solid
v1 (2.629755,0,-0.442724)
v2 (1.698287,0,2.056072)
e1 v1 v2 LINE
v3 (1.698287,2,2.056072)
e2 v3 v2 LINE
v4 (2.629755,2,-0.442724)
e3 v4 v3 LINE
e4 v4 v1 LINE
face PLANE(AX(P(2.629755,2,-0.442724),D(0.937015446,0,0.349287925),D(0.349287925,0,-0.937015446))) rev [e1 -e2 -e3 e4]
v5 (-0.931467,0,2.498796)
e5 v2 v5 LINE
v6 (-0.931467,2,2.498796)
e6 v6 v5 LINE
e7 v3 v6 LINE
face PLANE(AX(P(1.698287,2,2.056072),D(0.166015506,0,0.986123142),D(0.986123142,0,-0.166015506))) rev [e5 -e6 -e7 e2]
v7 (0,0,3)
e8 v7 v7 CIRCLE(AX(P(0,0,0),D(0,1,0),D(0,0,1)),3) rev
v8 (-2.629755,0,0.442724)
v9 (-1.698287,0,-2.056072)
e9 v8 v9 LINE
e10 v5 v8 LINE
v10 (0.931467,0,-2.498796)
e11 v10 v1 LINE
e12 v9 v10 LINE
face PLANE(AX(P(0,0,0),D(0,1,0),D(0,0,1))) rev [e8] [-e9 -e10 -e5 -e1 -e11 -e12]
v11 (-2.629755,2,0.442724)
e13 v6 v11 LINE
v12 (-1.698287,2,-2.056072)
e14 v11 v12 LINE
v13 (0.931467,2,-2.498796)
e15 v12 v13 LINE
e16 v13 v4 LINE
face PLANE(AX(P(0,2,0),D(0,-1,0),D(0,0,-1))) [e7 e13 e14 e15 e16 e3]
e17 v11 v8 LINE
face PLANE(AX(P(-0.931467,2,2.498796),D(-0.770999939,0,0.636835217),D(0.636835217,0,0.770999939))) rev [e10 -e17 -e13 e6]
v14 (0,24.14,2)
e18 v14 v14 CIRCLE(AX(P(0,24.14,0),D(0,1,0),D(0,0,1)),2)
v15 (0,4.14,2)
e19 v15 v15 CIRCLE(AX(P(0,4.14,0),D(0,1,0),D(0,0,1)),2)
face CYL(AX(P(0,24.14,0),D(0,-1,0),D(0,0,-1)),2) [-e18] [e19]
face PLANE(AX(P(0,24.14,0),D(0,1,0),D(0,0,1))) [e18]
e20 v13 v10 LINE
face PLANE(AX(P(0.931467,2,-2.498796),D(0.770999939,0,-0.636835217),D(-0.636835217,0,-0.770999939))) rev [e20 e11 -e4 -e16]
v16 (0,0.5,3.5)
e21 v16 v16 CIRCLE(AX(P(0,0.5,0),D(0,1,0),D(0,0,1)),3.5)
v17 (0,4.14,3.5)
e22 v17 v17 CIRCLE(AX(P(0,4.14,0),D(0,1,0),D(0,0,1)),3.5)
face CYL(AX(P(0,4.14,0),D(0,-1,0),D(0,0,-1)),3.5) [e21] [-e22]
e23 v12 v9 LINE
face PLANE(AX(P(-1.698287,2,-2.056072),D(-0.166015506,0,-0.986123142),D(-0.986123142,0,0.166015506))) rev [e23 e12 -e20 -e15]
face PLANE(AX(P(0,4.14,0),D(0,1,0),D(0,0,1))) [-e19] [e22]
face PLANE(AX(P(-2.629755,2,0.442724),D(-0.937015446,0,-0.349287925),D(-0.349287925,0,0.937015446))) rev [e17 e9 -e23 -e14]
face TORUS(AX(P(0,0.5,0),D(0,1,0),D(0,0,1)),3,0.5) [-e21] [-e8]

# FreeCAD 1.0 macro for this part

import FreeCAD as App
import Part
import Sketcher


def edges_at(feature, points):
    """Names of the edges that pass closest to the given points."""
    edges = feature.Shape.Edges
    near = lambda p: min(range(len(edges)), key=lambda i: edges[i].distToShape(Part.Vertex(*p))[0])
    return sorted({f"Edge{near(p) + 1}" for p in points})


def add_polygon(sketch, points):
    """Adds a closed chain of lines whose ends are joined by coincident constraints."""
    first, n = sketch.GeometryCount, len(points)
    for a, b in zip(points, points[1:] + points[:1]):
        sketch.addGeometry(Part.LineSegment(App.Vector(*a, 0), App.Vector(*b, 0)), False)
    for i in range(n):
        sketch.addConstraint(Sketcher.Constraint("Coincident", first + i, 2, first + (i + 1) % n, 1))

doc = App.newDocument("Part")
body = doc.addObject("PartDesign::Body", "Body")

# Sketch on XZ plane
sketch1 = body.newObject("Sketcher::SketchObject", "Sketch")
sketch1.AttachmentSupport = (doc.getObject("XZ_Plane"), [""])
sketch1.MapMode = "FlatFace"
sketch1.addGeometry(Part.Circle(App.Vector(0, 0, 0), App.Vector(0, 0, 1), 3.5), False)
sketch1.addConstraint([
    Sketcher.Constraint("Coincident", 0, 3, -1, 1),
    Sketcher.Constraint("Diameter", 0, 7.0),
])
pad1 = body.newObject("PartDesign::Pad", "Pad")
pad1.Profile = sketch1
pad1.Length = 4.14
pad1.Reversed = True

# Sketch on XZ plane
sketch2 = body.newObject("Sketcher::SketchObject", "Sketch001")
sketch2.AttachmentSupport = (doc.getObject("XZ_Plane"), [""])
sketch2.MapMode = "FlatFace"
sketch2.AttachmentOffset = App.Placement(App.Vector(0, 0, -4.14), App.Rotation())
sketch2.addGeometry(Part.Circle(App.Vector(0, 0, 0), App.Vector(0, 0, 1), 2), False)
sketch2.addConstraint([
    Sketcher.Constraint("Coincident", 0, 3, -1, 1),
    Sketcher.Constraint("Diameter", 0, 4.0),
])
pad2 = body.newObject("PartDesign::Pad", "Pad001")
pad2.Profile = sketch2
pad2.Length = 20
pad2.Reversed = True
doc.recompute()

fillet = body.newObject("PartDesign::Fillet", "Fillet")
fillet.Base = (pad2, edges_at(pad2, [(0, 0, -3.5)]))
fillet.Radius = 0.5

# Sketch on XZ plane
sketch3 = body.newObject("Sketcher::SketchObject", "Sketch002")
sketch3.AttachmentSupport = (doc.getObject("XZ_Plane"), [""])
sketch3.MapMode = "FlatFace"
add_polygon(sketch3, [(1.7, 2.1), (-0.9, 2.5), (-2.6, 0.4), (-1.7, -2.1), (0.9, -2.5), (2.6, -0.4)])  # lines 0-5
sketch3.addConstraint([
    Sketcher.Constraint("Symmetric", 0, 2, 3, 2, -1, 1),
    Sketcher.Constraint("Symmetric", 1, 2, 4, 2, -1, 1),
    Sketcher.Constraint("Symmetric", 2, 2, 5, 2, -1, 1),
    Sketcher.Constraint("Equal", 0, 1),
    Sketcher.Constraint("Equal", 1, 2),
    Sketcher.Constraint("Distance", 0, 2.666761),
    Sketcher.Constraint("DistanceX", 2, 2, 0, 2, 0.76682),
    Sketcher.Constraint("DistanceY", 2, 2, 0, 2, 4.554869),
    Sketcher.Constraint("DistanceX", 1, 2, 3, 2, 3.561222),
])
pocket1 = body.newObject("PartDesign::Pocket", "Pocket")
pocket1.Profile = sketch3
pocket1.Length = 2

doc.recompute()
